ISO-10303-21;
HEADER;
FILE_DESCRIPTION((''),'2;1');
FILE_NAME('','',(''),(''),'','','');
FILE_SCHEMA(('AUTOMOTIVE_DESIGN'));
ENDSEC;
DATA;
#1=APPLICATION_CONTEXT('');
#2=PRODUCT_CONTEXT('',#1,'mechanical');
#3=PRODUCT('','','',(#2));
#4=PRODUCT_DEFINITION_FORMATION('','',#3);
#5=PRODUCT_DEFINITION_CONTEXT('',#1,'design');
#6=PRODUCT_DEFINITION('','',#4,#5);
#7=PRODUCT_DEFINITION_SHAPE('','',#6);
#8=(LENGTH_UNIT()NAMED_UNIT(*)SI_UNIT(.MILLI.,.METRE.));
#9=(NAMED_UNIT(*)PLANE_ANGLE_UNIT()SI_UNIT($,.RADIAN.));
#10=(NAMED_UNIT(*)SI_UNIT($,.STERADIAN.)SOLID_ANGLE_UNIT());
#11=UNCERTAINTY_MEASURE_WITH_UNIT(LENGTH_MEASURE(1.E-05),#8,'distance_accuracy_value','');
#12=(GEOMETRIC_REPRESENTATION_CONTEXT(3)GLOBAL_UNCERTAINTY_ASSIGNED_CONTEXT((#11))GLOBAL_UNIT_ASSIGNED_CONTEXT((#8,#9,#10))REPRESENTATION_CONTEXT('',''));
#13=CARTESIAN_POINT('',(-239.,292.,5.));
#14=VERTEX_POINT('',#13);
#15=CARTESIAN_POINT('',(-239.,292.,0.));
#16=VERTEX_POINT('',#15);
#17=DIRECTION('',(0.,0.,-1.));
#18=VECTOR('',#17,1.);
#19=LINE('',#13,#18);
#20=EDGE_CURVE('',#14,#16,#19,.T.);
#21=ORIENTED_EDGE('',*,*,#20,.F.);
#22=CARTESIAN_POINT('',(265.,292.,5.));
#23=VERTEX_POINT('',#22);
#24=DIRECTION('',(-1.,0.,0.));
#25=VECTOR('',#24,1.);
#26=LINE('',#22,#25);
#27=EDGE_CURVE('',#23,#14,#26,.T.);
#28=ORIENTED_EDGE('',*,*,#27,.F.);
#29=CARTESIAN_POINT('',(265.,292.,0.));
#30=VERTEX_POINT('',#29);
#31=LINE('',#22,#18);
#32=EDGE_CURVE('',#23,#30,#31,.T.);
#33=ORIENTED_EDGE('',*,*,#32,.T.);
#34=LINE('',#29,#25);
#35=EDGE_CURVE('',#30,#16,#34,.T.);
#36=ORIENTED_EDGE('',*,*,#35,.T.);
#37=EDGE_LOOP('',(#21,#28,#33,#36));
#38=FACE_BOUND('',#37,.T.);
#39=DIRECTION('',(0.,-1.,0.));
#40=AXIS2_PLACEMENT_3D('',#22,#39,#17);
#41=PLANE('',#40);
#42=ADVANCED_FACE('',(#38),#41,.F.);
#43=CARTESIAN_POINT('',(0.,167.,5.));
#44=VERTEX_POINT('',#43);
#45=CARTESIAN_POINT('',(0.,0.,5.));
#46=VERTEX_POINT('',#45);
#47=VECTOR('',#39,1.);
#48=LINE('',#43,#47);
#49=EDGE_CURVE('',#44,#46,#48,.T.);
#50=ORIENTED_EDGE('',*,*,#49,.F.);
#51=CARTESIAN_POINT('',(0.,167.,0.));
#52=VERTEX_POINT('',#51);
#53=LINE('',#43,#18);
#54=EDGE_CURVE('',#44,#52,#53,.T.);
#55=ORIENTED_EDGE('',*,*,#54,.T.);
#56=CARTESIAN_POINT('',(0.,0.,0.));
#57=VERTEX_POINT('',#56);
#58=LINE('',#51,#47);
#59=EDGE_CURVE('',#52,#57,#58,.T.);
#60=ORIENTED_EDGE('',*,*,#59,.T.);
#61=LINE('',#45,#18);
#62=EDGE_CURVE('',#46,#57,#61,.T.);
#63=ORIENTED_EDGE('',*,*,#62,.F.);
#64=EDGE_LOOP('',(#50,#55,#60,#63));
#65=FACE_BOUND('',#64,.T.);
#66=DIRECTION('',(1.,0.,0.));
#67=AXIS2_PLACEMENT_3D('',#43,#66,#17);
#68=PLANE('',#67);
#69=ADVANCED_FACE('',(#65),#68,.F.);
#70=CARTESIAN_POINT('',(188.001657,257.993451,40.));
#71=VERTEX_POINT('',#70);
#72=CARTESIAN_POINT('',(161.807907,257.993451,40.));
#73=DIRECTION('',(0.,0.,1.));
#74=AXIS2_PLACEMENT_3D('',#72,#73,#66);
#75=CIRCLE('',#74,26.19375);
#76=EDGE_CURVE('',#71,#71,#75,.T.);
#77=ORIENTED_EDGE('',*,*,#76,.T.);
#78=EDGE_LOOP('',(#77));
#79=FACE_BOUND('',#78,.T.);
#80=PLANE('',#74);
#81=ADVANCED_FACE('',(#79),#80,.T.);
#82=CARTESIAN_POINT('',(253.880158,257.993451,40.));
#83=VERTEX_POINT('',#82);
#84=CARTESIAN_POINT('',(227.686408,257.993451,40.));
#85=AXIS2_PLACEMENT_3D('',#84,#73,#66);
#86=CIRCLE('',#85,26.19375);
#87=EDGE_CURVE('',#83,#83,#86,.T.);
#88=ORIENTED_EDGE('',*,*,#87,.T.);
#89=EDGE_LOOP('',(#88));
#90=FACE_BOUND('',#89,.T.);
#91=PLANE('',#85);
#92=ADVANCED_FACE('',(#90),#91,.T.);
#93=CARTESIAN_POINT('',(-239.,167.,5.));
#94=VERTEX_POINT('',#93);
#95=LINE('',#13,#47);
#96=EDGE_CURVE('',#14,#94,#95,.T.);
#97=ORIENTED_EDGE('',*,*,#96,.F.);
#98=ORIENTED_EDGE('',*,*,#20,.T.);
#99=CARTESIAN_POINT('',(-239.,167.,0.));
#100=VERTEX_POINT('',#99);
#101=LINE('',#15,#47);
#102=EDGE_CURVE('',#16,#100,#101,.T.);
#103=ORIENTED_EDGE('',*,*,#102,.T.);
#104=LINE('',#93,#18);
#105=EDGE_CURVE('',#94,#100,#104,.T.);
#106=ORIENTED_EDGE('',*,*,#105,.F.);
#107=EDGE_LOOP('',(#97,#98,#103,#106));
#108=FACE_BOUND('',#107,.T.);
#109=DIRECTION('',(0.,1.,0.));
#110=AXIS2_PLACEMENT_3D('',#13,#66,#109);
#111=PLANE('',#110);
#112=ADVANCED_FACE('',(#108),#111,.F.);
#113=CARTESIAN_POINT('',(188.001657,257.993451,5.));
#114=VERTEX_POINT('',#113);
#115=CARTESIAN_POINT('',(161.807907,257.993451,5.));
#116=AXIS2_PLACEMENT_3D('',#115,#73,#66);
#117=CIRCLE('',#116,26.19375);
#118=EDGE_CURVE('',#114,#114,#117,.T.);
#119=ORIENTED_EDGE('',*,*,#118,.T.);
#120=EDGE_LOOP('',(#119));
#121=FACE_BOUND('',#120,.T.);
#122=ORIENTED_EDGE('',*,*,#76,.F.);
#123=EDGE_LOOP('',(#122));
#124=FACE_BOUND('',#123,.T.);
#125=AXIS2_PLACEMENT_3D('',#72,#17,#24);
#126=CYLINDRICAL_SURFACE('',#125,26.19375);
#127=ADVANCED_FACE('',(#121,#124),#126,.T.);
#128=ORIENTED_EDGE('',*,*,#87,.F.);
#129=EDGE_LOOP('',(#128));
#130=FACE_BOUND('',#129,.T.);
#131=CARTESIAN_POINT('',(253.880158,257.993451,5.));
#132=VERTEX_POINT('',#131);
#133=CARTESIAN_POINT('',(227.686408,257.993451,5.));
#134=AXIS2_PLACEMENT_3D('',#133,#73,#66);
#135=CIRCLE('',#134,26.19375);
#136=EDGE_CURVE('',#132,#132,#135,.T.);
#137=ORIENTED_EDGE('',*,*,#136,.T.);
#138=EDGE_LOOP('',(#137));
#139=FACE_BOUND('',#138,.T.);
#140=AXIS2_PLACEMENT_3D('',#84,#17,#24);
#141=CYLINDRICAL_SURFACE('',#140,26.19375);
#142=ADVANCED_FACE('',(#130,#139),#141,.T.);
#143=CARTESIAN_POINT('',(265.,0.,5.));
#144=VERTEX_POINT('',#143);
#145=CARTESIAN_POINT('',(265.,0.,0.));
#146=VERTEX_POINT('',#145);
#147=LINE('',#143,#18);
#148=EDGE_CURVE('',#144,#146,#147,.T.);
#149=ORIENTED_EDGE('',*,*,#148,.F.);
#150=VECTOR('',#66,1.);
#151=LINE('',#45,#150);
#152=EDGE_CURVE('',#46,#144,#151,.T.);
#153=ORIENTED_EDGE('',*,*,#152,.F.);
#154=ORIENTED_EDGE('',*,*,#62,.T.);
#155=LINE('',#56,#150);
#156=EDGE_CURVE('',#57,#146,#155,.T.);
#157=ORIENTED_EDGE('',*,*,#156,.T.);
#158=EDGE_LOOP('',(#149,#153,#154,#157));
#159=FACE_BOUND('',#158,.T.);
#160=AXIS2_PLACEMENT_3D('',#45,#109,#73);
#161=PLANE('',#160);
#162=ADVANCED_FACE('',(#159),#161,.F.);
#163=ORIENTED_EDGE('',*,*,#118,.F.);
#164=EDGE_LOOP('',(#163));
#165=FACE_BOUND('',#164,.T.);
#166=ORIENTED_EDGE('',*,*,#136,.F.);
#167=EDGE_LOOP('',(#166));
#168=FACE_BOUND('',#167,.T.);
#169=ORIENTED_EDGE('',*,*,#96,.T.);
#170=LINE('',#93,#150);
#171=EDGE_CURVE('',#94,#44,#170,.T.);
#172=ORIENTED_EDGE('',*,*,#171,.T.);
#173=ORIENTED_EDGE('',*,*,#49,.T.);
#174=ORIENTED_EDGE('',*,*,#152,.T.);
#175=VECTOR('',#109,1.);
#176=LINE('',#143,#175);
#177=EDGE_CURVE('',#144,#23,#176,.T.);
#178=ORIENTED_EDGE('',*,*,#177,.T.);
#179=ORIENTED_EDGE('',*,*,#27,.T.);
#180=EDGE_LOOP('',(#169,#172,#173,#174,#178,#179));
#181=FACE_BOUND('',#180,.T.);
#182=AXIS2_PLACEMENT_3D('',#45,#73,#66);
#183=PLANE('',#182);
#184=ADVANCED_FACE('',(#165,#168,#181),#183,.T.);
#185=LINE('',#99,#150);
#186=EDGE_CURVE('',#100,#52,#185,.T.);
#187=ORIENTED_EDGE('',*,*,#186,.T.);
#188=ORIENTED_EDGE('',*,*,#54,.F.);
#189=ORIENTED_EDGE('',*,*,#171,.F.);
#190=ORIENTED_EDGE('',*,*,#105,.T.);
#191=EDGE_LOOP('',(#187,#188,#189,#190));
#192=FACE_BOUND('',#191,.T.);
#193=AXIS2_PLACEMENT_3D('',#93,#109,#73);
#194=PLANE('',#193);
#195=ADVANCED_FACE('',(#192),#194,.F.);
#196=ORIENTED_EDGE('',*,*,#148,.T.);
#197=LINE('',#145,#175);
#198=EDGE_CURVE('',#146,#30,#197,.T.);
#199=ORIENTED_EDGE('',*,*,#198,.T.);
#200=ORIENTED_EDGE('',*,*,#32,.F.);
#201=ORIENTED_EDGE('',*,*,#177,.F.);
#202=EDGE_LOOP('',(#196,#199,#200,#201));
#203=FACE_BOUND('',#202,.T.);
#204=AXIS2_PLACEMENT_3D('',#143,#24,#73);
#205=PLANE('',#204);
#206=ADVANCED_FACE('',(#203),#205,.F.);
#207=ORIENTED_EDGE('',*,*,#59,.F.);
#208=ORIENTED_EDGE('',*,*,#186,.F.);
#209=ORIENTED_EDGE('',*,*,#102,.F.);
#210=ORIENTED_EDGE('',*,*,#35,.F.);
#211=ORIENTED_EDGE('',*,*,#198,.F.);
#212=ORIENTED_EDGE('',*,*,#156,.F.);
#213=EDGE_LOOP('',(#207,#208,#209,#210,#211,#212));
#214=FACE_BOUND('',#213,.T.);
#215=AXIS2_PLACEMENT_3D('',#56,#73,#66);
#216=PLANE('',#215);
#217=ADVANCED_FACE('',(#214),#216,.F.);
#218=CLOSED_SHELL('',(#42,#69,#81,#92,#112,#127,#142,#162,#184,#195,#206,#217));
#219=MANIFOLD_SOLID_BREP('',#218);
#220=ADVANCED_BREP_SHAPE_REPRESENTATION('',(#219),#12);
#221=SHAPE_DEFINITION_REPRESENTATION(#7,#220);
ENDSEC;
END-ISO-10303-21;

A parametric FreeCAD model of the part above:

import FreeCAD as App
import Part
import Sketcher
from FreeCAD import Vector


def add_polygon(sketch, points):
    """Adds a closed chain of lines whose ends are joined by coincident constraints."""
    first, n = sketch.GeometryCount, len(points)
    for a, b in zip(points, points[1:] + points[:1]):
        sketch.addGeometry(Part.LineSegment(App.Vector(*a, 0), App.Vector(*b, 0)), False)
    for i in range(n):
        sketch.addConstraint(Sketcher.Constraint("Coincident", first + i, 2, first + (i + 1) % n, 1))

doc = App.newDocument("Part")
params = doc.addObject("Spreadsheet::Sheet", "Params")
for row, (alias, value) in enumerate([
    ("sketch1_width", "265 mm"),
    ("sketch1_width2", "504 mm"),
    ("sketch1_height", "292 mm"),
    ("sketch1_height2", "125 mm"),
    ("pad1_length", "5 mm"),
    ("pad2_length", "35 mm"),
], start=1):
    params.set(f"A{row}", alias)
    params.set(f"B{row}", "=" + value)
    params.setAlias(f"B{row}", alias)

body = doc.addObject("PartDesign::Body", "Body")

# Sketch on XY plane
sketch1 = body.newObject("Sketcher::SketchObject", "Sketch")
sketch1.AttachmentSupport = (doc.getObject("XY_Plane"), [""])
sketch1.MapMode = "FlatFace"
add_polygon(sketch1, [(0, 0), (265, 0), (265, 292), (-239, 292), (-239, 167), (0, 167)])  # lines 0-5
sketch1.addConstraint(Sketcher.Constraint("Horizontal", 0))
sketch1.addConstraint(Sketcher.Constraint("Vertical", 1))
sketch1.addConstraint(Sketcher.Constraint("Horizontal", 2))
sketch1.addConstraint(Sketcher.Constraint("Vertical", 3))
sketch1.addConstraint(Sketcher.Constraint("Horizontal", 4))
sketch1.addConstraint(Sketcher.Constraint("Vertical", 5))
sketch1.addConstraint(Sketcher.Constraint("Coincident", 5, 2, -1, 1))
sketch1.addConstraint(Sketcher.Constraint("DistanceX", 0, 1, 0, 2, 265.0))
sketch1.addConstraint(Sketcher.Constraint("DistanceX", 2, 2, 2, 1, 504.0))
sketch1.addConstraint(Sketcher.Constraint("DistanceY", 1, 1, 1, 2, 292.0))
sketch1.addConstraint(Sketcher.Constraint("DistanceY", 3, 2, 3, 1, 125.0))
sketch1.setExpression("Constraints[13]", "Params.sketch1_width")
sketch1.setExpression("Constraints[14]", "Params.sketch1_width2")
sketch1.setExpression("Constraints[15]", "Params.sketch1_height")
sketch1.setExpression("Constraints[16]", "Params.sketch1_height2")
pad1 = body.newObject("PartDesign::Pad", "Pad")
pad1.Profile = sketch1
pad1.setExpression("Length", "Params.pad1_length")

# Sketch on XY plane
sketch2 = body.newObject("Sketcher::SketchObject", "Sketch001")
sketch2.AttachmentSupport = (doc.getObject("XY_Plane"), [""])
sketch2.MapMode = "FlatFace"
sketch2.AttachmentOffset = App.Placement(Vector(0, 0, 5), App.Rotation())
sketch2.addGeometry(Part.Circle(Vector(228, 258, 0), Vector(0, 0, 1), 26), False)
sketch2.addGeometry(Part.Circle(Vector(162, 258, 0), Vector(0, 0, 1), 26), False)
sketch2.addConstraint(Sketcher.Constraint("Equal", 0, 1))
sketch2.addConstraint(Sketcher.Constraint("Horizontal", 0, 3, 1, 3))
sketch2.addConstraint(Sketcher.Constraint("Diameter", 0, 52.3875))
sketch2.addConstraint(Sketcher.Constraint("DistanceX", 1, 3, 0, 3, 65.878501))
sketch2.addConstraint(Sketcher.Constraint("DistanceY", -1, 1, 0, 3, 257.993451))
sketch2.addConstraint(Sketcher.Constraint("DistanceX", -1, 1, 0, 3, 227.686408))
pad2 = body.newObject("PartDesign::Pad", "Pad001")
pad2.Profile = sketch2
pad2.setExpression("Length", "Params.pad2_length")

doc.recompute()
